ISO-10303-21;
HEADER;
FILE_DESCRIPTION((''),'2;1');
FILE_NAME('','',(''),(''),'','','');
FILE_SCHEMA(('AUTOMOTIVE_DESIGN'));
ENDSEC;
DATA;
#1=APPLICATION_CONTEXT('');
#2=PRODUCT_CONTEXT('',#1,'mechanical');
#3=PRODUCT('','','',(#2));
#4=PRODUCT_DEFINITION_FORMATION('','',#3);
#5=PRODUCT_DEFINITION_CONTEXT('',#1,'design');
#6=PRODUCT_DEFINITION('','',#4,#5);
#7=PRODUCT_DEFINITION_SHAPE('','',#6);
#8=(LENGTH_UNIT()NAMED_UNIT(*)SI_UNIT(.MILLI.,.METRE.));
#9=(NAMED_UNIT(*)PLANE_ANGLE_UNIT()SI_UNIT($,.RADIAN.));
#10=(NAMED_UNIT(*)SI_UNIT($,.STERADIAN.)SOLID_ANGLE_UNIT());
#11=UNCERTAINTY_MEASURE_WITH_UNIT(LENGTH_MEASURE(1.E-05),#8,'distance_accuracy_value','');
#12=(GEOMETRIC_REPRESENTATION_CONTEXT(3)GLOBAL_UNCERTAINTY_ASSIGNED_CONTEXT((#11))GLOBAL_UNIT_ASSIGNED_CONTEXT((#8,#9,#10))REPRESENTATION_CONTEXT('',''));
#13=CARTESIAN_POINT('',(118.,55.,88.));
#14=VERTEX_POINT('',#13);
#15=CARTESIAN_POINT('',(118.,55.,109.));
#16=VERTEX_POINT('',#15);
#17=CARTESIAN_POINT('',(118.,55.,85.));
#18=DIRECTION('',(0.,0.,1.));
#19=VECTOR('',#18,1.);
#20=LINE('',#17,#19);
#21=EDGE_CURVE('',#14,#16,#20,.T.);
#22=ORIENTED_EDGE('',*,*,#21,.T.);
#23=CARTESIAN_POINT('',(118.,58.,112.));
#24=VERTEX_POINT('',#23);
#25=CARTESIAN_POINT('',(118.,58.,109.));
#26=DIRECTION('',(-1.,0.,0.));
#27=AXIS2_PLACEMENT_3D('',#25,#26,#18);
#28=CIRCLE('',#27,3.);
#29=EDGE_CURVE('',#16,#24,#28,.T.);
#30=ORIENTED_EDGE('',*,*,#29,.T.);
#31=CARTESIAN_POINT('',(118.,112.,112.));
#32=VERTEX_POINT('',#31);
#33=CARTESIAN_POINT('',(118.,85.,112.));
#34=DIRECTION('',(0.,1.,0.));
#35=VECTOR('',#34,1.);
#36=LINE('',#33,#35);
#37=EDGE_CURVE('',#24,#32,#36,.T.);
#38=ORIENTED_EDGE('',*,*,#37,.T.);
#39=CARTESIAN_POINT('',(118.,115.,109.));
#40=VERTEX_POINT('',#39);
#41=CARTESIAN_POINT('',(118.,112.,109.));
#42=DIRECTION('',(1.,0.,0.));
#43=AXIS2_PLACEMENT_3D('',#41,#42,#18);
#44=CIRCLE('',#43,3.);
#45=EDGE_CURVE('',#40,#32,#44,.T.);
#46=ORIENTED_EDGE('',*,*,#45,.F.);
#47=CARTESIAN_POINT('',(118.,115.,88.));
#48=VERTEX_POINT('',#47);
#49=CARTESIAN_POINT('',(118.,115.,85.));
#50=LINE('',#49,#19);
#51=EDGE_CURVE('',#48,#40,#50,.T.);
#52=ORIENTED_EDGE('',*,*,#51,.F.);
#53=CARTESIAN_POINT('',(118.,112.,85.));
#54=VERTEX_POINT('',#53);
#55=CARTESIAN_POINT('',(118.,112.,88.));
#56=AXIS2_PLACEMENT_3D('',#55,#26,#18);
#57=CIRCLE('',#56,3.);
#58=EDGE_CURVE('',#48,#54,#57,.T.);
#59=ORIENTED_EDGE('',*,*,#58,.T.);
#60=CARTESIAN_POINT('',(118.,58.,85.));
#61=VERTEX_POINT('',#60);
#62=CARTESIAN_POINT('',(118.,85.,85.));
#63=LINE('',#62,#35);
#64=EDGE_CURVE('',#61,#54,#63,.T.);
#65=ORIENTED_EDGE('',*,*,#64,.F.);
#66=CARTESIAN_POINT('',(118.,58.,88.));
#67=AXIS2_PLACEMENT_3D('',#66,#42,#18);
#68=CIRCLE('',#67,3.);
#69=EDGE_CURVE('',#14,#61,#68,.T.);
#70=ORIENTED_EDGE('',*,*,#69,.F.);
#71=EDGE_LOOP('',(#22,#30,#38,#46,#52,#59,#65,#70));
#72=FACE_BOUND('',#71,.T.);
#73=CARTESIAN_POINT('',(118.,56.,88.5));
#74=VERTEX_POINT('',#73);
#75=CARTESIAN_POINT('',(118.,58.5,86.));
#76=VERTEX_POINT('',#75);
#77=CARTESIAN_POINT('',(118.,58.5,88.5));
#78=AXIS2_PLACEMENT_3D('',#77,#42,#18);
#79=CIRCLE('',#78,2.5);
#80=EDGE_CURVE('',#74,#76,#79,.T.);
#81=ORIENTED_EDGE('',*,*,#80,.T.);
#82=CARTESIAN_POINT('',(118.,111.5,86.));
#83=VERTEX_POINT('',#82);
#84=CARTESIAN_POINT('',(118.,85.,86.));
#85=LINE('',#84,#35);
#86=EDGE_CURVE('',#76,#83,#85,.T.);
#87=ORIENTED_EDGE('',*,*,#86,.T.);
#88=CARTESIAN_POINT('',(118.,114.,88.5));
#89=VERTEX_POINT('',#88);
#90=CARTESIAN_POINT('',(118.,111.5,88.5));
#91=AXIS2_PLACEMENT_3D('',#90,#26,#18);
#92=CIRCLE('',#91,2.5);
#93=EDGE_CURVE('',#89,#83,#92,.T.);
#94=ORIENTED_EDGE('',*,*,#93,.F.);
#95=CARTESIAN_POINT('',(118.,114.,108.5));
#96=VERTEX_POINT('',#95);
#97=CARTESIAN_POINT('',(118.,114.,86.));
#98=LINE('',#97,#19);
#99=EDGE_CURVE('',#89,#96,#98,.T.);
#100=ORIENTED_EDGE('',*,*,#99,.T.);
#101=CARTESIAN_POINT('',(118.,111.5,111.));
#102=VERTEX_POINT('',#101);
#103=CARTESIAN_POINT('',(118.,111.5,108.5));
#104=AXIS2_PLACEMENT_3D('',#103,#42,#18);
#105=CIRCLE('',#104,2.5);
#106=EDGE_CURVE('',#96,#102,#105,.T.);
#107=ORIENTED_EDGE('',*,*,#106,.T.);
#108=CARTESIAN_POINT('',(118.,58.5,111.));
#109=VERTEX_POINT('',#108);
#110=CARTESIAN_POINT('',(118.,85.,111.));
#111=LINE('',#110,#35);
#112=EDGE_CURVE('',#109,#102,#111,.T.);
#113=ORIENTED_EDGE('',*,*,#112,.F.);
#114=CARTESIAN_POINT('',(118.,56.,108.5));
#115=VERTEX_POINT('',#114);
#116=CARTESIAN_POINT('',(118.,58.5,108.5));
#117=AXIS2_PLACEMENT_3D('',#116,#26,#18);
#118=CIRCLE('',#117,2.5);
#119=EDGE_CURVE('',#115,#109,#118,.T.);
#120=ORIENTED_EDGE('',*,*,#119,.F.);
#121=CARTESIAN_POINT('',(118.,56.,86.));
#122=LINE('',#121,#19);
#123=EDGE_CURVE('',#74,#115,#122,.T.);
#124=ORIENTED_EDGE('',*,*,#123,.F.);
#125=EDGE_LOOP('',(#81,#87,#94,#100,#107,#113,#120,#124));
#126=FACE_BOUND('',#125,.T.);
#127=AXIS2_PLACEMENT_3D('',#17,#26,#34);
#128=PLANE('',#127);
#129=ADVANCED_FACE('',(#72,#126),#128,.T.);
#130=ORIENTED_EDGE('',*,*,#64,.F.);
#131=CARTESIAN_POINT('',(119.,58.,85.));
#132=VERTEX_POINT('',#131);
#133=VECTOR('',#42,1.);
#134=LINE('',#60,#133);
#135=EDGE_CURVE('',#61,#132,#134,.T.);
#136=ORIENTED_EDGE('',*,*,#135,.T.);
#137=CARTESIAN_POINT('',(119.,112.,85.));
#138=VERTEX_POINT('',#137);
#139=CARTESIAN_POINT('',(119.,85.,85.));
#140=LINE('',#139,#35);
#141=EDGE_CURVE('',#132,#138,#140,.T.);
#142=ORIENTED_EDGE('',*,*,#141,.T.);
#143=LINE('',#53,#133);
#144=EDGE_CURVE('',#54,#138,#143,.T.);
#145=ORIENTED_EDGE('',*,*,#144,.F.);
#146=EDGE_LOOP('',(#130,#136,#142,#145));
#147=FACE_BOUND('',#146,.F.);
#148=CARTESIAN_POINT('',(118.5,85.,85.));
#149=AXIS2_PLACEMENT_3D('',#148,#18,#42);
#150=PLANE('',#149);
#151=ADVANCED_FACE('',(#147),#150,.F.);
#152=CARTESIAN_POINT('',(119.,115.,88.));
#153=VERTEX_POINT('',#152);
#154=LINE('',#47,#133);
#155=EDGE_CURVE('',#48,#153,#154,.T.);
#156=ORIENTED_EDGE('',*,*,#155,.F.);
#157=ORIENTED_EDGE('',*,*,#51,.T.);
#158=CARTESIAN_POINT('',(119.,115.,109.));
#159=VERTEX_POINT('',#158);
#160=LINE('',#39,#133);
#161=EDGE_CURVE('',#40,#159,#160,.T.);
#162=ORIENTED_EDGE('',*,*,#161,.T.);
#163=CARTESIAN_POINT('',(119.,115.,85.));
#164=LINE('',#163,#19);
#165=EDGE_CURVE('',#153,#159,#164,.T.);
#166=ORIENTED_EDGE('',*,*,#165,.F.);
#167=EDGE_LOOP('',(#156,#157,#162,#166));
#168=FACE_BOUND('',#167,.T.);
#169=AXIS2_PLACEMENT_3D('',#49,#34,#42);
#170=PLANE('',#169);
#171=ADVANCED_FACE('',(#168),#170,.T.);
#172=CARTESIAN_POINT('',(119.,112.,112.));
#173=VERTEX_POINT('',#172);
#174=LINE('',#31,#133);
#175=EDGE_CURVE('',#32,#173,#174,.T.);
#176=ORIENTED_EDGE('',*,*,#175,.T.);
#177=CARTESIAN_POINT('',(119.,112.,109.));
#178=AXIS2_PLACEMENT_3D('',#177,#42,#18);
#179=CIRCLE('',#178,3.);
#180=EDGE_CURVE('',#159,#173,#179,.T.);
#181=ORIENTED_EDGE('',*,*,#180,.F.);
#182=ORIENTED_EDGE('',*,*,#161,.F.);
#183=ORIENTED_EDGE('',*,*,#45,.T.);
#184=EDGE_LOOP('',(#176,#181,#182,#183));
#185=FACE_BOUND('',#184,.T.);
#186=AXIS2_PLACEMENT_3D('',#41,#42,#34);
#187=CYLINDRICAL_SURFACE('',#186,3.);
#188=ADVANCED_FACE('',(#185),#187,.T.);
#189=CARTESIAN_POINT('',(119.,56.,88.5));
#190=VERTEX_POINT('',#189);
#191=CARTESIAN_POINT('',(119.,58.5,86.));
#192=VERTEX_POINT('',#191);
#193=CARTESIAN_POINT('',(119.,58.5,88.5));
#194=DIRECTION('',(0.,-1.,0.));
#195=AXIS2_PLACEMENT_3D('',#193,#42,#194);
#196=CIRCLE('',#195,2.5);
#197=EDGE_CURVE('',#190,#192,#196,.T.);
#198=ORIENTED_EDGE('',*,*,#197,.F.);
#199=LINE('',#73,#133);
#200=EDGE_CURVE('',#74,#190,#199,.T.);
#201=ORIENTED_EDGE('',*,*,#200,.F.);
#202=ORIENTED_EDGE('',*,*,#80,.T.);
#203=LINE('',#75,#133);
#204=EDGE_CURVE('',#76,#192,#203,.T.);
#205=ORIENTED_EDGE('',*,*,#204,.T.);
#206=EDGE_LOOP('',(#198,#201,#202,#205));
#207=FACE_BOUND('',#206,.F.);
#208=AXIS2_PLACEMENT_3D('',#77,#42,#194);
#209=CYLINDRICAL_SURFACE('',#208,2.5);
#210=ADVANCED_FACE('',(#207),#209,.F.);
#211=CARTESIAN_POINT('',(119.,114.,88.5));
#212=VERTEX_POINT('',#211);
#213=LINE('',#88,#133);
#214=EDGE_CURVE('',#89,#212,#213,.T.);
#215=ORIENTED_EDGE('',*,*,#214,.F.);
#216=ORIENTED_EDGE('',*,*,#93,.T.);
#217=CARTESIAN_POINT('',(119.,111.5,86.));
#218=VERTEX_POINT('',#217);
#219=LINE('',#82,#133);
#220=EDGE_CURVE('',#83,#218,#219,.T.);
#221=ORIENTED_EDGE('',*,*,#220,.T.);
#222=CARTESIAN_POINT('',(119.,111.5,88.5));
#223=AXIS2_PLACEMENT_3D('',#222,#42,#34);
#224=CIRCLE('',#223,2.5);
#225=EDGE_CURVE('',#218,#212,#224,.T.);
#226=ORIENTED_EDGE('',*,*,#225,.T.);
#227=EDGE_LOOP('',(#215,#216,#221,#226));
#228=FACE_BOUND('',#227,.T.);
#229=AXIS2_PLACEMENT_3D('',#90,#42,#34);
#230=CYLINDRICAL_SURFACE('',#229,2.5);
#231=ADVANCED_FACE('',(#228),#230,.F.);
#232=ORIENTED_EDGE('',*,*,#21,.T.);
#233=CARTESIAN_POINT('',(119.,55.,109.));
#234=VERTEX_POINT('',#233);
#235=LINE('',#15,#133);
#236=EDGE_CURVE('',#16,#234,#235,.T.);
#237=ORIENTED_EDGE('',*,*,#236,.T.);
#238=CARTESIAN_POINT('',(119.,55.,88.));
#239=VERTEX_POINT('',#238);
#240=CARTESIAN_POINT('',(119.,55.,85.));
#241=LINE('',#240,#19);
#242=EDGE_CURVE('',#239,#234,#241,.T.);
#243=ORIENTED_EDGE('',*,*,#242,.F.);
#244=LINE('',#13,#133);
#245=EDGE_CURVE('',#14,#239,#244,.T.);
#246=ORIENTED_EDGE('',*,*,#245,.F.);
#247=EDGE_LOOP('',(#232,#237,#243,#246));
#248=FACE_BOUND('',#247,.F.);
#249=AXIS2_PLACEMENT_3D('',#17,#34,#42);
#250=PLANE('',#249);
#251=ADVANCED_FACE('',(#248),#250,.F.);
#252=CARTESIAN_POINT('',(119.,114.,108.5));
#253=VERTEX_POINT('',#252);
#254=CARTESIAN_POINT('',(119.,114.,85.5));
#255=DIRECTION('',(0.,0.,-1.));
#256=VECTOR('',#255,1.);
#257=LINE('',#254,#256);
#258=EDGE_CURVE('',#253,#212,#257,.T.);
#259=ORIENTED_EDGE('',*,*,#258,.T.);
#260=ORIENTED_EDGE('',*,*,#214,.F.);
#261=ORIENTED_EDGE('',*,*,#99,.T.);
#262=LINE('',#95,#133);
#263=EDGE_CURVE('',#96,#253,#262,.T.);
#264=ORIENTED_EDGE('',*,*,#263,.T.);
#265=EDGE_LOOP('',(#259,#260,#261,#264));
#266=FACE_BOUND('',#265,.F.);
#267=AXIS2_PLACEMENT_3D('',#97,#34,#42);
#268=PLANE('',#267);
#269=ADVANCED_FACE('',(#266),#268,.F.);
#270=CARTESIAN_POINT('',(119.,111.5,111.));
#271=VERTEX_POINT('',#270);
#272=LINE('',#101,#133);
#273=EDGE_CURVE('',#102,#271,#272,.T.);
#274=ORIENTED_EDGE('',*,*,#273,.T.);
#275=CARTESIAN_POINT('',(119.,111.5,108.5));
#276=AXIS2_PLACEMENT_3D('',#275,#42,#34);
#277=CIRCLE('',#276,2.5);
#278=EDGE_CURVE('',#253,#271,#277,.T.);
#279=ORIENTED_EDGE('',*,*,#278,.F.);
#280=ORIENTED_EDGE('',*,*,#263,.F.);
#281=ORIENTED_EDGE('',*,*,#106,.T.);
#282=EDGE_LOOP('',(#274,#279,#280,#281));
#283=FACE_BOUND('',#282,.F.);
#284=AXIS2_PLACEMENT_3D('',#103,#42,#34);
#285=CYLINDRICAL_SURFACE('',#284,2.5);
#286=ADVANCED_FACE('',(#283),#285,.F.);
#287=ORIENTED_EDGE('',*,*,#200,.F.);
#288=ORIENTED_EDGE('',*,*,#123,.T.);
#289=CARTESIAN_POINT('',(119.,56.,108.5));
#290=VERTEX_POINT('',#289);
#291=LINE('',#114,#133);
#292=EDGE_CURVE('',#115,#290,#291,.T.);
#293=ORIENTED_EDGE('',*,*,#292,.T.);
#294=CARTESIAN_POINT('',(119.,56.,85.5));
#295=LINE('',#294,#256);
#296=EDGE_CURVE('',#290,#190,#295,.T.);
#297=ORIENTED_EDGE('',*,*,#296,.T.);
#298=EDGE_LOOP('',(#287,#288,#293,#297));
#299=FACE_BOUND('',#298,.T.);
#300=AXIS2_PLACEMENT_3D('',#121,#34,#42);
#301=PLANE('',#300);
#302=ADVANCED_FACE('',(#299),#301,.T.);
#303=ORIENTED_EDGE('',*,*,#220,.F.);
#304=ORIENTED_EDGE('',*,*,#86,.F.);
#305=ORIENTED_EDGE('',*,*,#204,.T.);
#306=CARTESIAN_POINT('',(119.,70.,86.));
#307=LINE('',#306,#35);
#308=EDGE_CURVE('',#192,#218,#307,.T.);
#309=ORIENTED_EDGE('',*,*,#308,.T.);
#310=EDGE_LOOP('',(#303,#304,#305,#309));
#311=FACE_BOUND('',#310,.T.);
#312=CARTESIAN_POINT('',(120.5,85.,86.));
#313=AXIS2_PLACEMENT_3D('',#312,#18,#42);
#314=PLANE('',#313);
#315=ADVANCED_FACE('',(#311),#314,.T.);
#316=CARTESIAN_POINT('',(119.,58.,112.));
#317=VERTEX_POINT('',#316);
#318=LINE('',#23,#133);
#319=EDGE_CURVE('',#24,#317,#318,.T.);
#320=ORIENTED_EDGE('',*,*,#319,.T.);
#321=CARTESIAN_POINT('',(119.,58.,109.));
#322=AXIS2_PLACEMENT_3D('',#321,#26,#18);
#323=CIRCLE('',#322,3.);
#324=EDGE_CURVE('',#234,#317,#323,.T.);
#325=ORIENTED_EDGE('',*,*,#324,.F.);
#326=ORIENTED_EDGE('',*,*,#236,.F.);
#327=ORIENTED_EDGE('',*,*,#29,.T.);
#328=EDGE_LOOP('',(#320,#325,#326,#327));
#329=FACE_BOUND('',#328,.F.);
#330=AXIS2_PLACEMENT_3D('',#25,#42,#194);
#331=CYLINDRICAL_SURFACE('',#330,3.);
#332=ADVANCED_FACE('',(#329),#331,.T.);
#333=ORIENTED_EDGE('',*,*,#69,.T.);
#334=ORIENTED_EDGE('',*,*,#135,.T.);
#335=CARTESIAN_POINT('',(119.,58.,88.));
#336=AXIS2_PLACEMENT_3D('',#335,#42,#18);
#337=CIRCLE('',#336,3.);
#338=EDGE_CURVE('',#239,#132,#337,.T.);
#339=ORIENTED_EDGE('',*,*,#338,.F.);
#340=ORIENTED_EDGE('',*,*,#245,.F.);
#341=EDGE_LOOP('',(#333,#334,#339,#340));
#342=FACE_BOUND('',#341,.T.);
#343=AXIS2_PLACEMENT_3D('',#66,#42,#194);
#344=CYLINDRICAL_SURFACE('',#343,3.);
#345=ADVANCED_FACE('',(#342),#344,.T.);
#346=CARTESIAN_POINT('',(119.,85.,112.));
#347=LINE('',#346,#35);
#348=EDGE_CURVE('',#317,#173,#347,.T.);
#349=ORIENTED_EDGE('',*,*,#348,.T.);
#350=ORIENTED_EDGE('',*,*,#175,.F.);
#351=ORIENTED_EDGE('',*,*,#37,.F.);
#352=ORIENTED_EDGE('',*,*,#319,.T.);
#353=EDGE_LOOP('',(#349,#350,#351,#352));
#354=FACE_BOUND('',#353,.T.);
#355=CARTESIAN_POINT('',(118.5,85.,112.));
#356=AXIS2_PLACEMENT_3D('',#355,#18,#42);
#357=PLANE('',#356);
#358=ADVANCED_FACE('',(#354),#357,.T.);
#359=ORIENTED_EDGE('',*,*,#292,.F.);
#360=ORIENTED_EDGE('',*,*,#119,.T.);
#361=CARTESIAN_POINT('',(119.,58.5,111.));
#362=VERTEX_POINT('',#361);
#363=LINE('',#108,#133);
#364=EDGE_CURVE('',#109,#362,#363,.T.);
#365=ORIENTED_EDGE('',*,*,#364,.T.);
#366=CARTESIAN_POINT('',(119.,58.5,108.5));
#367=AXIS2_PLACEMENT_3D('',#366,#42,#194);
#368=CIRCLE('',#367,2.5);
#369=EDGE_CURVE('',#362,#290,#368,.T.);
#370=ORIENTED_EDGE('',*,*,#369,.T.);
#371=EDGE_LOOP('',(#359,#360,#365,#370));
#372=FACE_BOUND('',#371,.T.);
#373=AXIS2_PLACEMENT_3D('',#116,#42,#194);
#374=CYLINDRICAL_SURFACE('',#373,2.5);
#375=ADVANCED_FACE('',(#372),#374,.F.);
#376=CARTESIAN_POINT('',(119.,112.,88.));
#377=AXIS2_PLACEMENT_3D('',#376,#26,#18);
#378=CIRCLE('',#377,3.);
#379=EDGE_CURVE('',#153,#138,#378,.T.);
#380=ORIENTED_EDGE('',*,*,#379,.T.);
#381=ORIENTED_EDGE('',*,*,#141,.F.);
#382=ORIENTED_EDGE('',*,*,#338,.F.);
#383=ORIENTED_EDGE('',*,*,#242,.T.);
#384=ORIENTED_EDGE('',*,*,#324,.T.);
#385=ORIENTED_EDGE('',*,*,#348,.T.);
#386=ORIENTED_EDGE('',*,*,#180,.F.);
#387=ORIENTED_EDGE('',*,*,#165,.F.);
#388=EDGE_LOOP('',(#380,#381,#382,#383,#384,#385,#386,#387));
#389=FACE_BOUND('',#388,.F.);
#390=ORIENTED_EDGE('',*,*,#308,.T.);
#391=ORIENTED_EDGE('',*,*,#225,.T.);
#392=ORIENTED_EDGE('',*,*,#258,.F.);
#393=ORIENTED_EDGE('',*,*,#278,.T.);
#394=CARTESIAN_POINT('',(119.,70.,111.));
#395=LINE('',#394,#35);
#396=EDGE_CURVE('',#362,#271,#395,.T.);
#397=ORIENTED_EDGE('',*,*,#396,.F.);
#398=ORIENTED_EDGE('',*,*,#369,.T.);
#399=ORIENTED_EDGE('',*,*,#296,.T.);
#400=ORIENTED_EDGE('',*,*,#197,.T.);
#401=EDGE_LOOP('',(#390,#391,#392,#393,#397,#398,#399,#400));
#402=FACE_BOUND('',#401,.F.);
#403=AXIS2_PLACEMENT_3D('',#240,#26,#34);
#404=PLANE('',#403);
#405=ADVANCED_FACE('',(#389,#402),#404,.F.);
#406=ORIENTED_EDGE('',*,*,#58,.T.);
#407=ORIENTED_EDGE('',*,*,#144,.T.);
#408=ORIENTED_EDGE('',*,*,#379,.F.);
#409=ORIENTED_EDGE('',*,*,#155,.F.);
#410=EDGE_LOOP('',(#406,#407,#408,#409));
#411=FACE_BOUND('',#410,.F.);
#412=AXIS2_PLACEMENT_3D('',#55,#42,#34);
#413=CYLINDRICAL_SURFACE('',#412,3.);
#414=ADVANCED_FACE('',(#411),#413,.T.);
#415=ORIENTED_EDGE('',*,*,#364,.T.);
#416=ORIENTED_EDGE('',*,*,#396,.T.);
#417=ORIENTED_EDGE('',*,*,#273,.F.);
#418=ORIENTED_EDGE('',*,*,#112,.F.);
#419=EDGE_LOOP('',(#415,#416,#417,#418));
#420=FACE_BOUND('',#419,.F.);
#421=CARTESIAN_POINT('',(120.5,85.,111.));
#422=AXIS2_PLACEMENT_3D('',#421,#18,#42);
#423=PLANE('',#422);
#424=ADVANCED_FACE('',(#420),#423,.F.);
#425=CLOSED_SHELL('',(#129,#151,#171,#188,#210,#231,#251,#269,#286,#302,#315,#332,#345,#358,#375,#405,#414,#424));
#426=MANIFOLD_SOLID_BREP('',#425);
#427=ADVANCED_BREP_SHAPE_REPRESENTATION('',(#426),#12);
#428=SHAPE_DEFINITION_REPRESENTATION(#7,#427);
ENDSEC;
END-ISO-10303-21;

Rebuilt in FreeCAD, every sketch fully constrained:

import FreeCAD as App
import Part
import Sketcher

V = App.Vector
Q = App.Units.Quantity


def edges_at(feature, points):
    """Names of the edges that pass closest to the given points."""
    edges = feature.Shape.Edges
    near = lambda p: min(range(len(edges)), key=lambda i: edges[i].distToShape(Part.Vertex(*p))[0])
    return sorted({f"Edge{near(p) + 1}" for p in points})

doc = App.newDocument("Part")
body = doc.addObject("PartDesign::Body", "Body")

sketch1 = body.newObject("Sketcher::SketchObject", "Sketch")
sketch1.AttachmentSupport = (doc.getObject("XY_Plane"), [""])
sketch1.MapMode = "FlatFace"
sketch1.AttachmentOffset = App.Placement(V(0, 0, 86), App.Rotation())
sketch1.addGeometry([
    Part.LineSegment(V(118, 114, 0), V(118, 56, 0)),
    Part.LineSegment(V(118, 56, 0), V(123, 56, 0)),
    Part.LineSegment(V(123, 56, 0), V(123, 114, 0)),
    Part.LineSegment(V(123, 114, 0), V(118, 114, 0)),
], False)
sketch1.addConstraint([
    Sketcher.Constraint("Coincident", 0, 2, 1, 1),
    Sketcher.Constraint("Coincident", 1, 2, 2, 1),
    Sketcher.Constraint("Coincident", 2, 2, 3, 1),
    Sketcher.Constraint("Coincident", 3, 2, 0, 1),
    Sketcher.Constraint("Vertical", 0),
    Sketcher.Constraint("Horizontal", 1),
    Sketcher.Constraint("Vertical", 2),
    Sketcher.Constraint("Horizontal", 3),
    Sketcher.Constraint("DistanceX", 1, 1, 1, 2, Q("5 mm")),
    Sketcher.Constraint("DistanceY", 0, 2, 0, 1, Q("58 mm")),
    Sketcher.Constraint("DistanceX", -1, 1, 0, 2, Q("118 mm")),
    Sketcher.Constraint("DistanceY", -1, 1, 0, 2, Q("56 mm")),
])
pad1 = body.newObject("PartDesign::Pad", "Pad")
pad1.Profile = sketch1
pad1.Length = 25
doc.recompute()

fillet = body.newObject("PartDesign::Fillet", "Fillet")
fillet.Base = (pad1, edges_at(pad1, [
    (120.5, 56, 86),
    (120.5, 56, 111),
    (120.5, 114, 86),
    (120.5, 114, 111),
]))
fillet.Radius = 2.5
body2 = doc.addObject("PartDesign::Body", "Body001")

sketch2 = body2.newObject("Sketcher::SketchObject", "Sketch001")
sketch2.AttachmentSupport = (doc.getObject("XY_Plane001"), [""])
sketch2.MapMode = "FlatFace"
sketch2.AttachmentOffset = App.Placement(V(0, 0, 85), App.Rotation())
sketch2.addGeometry([
    Part.LineSegment(V(118, 115, 0), V(118, 55, 0)),
    Part.LineSegment(V(118, 55, 0), V(119, 55, 0)),
    Part.LineSegment(V(119, 55, 0), V(119, 115, 0)),
    Part.LineSegment(V(119, 115, 0), V(118, 115, 0)),
], False)
sketch2.addConstraint([
    Sketcher.Constraint("Coincident", 0, 2, 1, 1),
    Sketcher.Constraint("Coincident", 1, 2, 2, 1),
    Sketcher.Constraint("Coincident", 2, 2, 3, 1),
    Sketcher.Constraint("Coincident", 3, 2, 0, 1),
    Sketcher.Constraint("Vertical", 0),
    Sketcher.Constraint("Horizontal", 1),
    Sketcher.Constraint("Vertical", 2),
    Sketcher.Constraint("Horizontal", 3),
    Sketcher.Constraint("DistanceX", 1, 1, 1, 2, Q("1 mm")),
    Sketcher.Constraint("DistanceY", 0, 2, 0, 1, Q("60 mm")),
    Sketcher.Constraint("DistanceX", -1, 1, 0, 2, Q("118 mm")),
    Sketcher.Constraint("DistanceY", -1, 1, 0, 2, Q("55 mm")),
])
pad2 = body2.newObject("PartDesign::Pad", "Pad001")
pad2.Profile = sketch2
pad2.Length = 27
doc.recompute()

fillet2 = body2.newObject("PartDesign::Fillet", "Fillet001")
fillet2.Base = (pad2, edges_at(pad2, [
    (118.5, 55, 85),
    (118.5, 55, 112),
    (118.5, 115, 85),
    (118.5, 115, 112),
]))
fillet2.Radius = 3
doc.recompute()

boolean = body2.newObject("PartDesign::Boolean", "Boolean")
boolean.Type = "Cut"
boolean.addObjects([body])

doc.recompute()
